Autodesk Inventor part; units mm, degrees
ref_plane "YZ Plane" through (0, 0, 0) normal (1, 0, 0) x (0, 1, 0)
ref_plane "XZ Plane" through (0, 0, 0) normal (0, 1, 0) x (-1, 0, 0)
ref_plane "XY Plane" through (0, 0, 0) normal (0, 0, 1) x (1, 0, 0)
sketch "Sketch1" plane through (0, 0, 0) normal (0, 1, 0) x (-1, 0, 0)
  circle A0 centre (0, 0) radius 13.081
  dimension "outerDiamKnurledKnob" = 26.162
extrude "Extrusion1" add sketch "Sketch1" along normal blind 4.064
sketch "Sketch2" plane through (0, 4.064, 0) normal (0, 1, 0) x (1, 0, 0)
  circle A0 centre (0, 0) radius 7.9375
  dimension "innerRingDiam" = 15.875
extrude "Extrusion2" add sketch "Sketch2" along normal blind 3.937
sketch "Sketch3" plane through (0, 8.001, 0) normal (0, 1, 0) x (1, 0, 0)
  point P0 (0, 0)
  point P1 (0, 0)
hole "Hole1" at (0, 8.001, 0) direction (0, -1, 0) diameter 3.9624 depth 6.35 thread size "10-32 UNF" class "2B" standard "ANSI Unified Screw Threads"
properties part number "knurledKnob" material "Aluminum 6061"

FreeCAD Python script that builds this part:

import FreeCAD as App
import Part
import Sketcher
Q = App.Units.Quantity

doc = App.newDocument("Part")
body = doc.addObject("PartDesign::Body", "Body")

# Sketch on XZ plane
sketch1 = doc.addObject("Sketcher::SketchObject", "Sketch")
body.addObject(sketch1)
sketch1.AttachmentSupport = (doc.XZ_Plane, [""])
sketch1.MapMode = "FlatFace"
sketch1.addGeometry(Part.Circle(App.Vector(0, 0, 0), App.Vector(0, 0, 1), 13.081), False)
sketch1.addConstraint([
    Sketcher.Constraint("Coincident", 0, 3, -1, 1),
    Sketcher.Constraint("Diameter", 0, Q("1.03 in")),
])
pad1 = doc.addObject("PartDesign::Pad", "Pad")
body.addObject(pad1)
pad1.Profile = sketch1
pad1.Length = Q("0.16 in")
pad1.Reversed = True

# Sketch on XZ plane
sketch2 = doc.addObject("Sketcher::SketchObject", "Sketch001")
body.addObject(sketch2)
sketch2.AttachmentSupport = (doc.XZ_Plane, [""])
sketch2.MapMode = "FlatFace"
sketch2.AttachmentOffset = App.Placement(App.Vector(0, 0, -0.16 * 25.4), App.Rotation())
sketch2.addGeometry(Part.Circle(App.Vector(0, 0, 0), App.Vector(0, 0, 1), 7.9375), False)
sketch2.addConstraint([
    Sketcher.Constraint("Coincident", 0, 3, -1, 1),
    Sketcher.Constraint("Diameter", 0, Q("0.625 in")),
])
pad2 = doc.addObject("PartDesign::Pad", "Pad001")
body.addObject(pad2)
pad2.Profile = sketch2
pad2.Length = Q("0.155 in")
pad2.Reversed = True

# Sketch on XZ plane
sketch3 = doc.addObject("Sketcher::SketchObject", "Sketch002")
body.addObject(sketch3)
sketch3.AttachmentSupport = (doc.XZ_Plane, [""])
sketch3.MapMode = "FlatFace"
sketch3.AttachmentOffset = App.Placement(App.Vector(0, 0, -0.315 * 25.4), App.Rotation())
sketch3.addGeometry(Part.Circle(App.Vector(0, 0, 0), App.Vector(0, 0, 1), 1.9812), False)
sketch3.addConstraint([
    Sketcher.Constraint("Coincident", 0, 3, -1, 1),
    Sketcher.Constraint("Diameter", 0, Q("0.156 in")),
])
doc.recompute()
hole = doc.addObject("PartDesign::Hole", "Hole")
body.addObject(hole)
hole.Profile = sketch3
hole.ThreadType = "None"
hole.Diameter = Q("0.156 in")
hole.DepthType = "Dimension"
hole.Depth = Q("0.25 in")
hole.DrillPoint = "Flat"
hole.Reversed = True

doc.recompute()
